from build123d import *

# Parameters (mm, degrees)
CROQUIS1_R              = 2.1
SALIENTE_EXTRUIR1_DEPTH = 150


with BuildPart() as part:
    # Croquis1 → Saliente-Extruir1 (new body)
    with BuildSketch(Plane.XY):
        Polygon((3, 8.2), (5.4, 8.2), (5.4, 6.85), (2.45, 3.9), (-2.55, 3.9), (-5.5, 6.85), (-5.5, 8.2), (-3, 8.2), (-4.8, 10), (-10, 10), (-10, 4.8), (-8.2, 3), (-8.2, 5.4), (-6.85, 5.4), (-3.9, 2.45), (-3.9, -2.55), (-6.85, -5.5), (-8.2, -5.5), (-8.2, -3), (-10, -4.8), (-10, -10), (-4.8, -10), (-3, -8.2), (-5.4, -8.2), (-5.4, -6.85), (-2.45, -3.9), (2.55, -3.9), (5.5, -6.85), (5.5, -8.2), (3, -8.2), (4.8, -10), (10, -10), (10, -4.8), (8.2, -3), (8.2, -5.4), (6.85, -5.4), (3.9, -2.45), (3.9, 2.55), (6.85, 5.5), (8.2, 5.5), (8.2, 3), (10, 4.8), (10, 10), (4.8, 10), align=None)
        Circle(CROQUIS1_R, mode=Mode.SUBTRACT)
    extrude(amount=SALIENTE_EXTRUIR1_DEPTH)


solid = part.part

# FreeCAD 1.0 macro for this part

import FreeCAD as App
import Part
import Sketcher

doc = App.newDocument("Part")
body = doc.addObject("PartDesign::Body", "Body")

# Sketch on XY plane
sketch1 = body.newObject("Sketcher::SketchObject", "Sketch")
sketch1.AttachmentSupport = (doc.getObject("XY_Plane"), [""])
sketch1.MapMode = "FlatFace"
sketch1.addGeometry(Part.LineSegment(App.Vector(3, 8.2, 0), App.Vector(5.4, 8.2, 0)), False)
sketch1.addGeometry(Part.LineSegment(App.Vector(5.4, 8.2, 0), App.Vector(5.4, 6.8, 0)), False)
sketch1.addGeometry(Part.LineSegment(App.Vector(5.4, 6.8, 0), App.Vector(2.5, 3.9, 0)), False)
sketch1.addGeometry(Part.LineSegment(App.Vector(2.5, 3.9, 0), App.Vector(-2.5, 3.9, 0)), False)
sketch1.addGeometry(Part.LineSegment(App.Vector(-2.5, 3.9, 0), App.Vector(-5.5, 6.8, 0)), False)
sketch1.addGeometry(Part.LineSegment(App.Vector(-5.5, 6.8, 0), App.Vector(-5.5, 8.2, 0)), False)
sketch1.addGeometry(Part.LineSegment(App.Vector(-5.5, 8.2, 0), App.Vector(-3, 8.2, 0)), False)
sketch1.addGeometry(Part.LineSegment(App.Vector(-3, 8.2, 0), App.Vector(-4.8, 10, 0)), False)
sketch1.addGeometry(Part.LineSegment(App.Vector(-4.8, 10, 0), App.Vector(-10, 10, 0)), False)
sketch1.addGeometry(Part.LineSegment(App.Vector(-10, 10, 0), App.Vector(-10, 4.8, 0)), False)
sketch1.addGeometry(Part.LineSegment(App.Vector(-10, 4.8, 0), App.Vector(-8.2, 3, 0)), False)
sketch1.addGeometry(Part.LineSegment(App.Vector(-8.2, 3, 0), App.Vector(-8.2, 5.4, 0)), False)
sketch1.addGeometry(Part.LineSegment(App.Vector(-8.2, 5.4, 0), App.Vector(-6.8, 5.4, 0)), False)
sketch1.addGeometry(Part.LineSegment(App.Vector(-6.8, 5.4, 0), App.Vector(-3.9, 2.5, 0)), False)
sketch1.addGeometry(Part.LineSegment(App.Vector(-3.9, 2.5, 0), App.Vector(-3.9, -2.5, 0)), False)
sketch1.addGeometry(Part.LineSegment(App.Vector(-3.9, -2.5, 0), App.Vector(-6.8, -5.5, 0)), False)
sketch1.addGeometry(Part.LineSegment(App.Vector(-6.8, -5.5, 0), App.Vector(-8.2, -5.5, 0)), False)
sketch1.addGeometry(Part.LineSegment(App.Vector(-8.2, -5.5, 0), App.Vector(-8.2, -3, 0)), False)
sketch1.addGeometry(Part.LineSegment(App.Vector(-8.2, -3, 0), App.Vector(-10, -4.8, 0)), False)
sketch1.addGeometry(Part.LineSegment(App.Vector(-10, -4.8, 0), App.Vector(-10, -10, 0)), False)
sketch1.addGeometry(Part.LineSegment(App.Vector(-10, -10, 0), App.Vector(-4.8, -10, 0)), False)
sketch1.addGeometry(Part.LineSegment(App.Vector(-4.8, -10, 0), App.Vector(-3, -8.2, 0)), False)
sketch1.addGeometry(Part.LineSegment(App.Vector(-3, -8.2, 0), App.Vector(-5.4, -8.2, 0)), False)
sketch1.addGeometry(Part.LineSegment(App.Vector(-5.4, -8.2, 0), App.Vector(-5.4, -6.8, 0)), False)
sketch1.addGeometry(Part.LineSegment(App.Vector(-5.4, -6.8, 0), App.Vector(-2.5, -3.9, 0)), False)
sketch1.addGeometry(Part.LineSegment(App.Vector(-2.5, -3.9, 0), App.Vector(2.5, -3.9, 0)), False)
sketch1.addGeometry(Part.LineSegment(App.Vector(2.5, -3.9, 0), App.Vector(5.5, -6.8, 0)), False)
sketch1.addGeometry(Part.LineSegment(App.Vector(5.5, -6.8, 0), App.Vector(5.5, -8.2, 0)), False)
sketch1.addGeometry(Part.LineSegment(App.Vector(5.5, -8.2, 0), App.Vector(3, -8.2, 0)), False)
sketch1.addGeometry(Part.LineSegment(App.Vector(3, -8.2, 0), App.Vector(4.8, -10, 0)), False)
sketch1.addGeometry(Part.LineSegment(App.Vector(4.8, -10, 0), App.Vector(10, -10, 0)), False)
sketch1.addGeometry(Part.LineSegment(App.Vector(10, -10, 0), App.Vector(10, -4.8, 0)), False)
sketch1.addGeometry(Part.LineSegment(App.Vector(10, -4.8, 0), App.Vector(8.2, -3, 0)), False)
sketch1.addGeometry(Part.LineSegment(App.Vector(8.2, -3, 0), App.Vector(8.2, -5.4, 0)), False)
sketch1.addGeometry(Part.LineSegment(App.Vector(8.2, -5.4, 0), App.Vector(6.8, -5.4, 0)), False)
sketch1.addGeometry(Part.LineSegment(App.Vector(6.8, -5.4, 0), App.Vector(3.9, -2.5, 0)), False)
sketch1.addGeometry(Part.LineSegment(App.Vector(3.9, -2.5, 0), App.Vector(3.9, 2.5, 0)), False)
sketch1.addGeometry(Part.LineSegment(App.Vector(3.9, 2.5, 0), App.Vector(6.8, 5.5, 0)), False)
sketch1.addGeometry(Part.LineSegment(App.Vector(6.8, 5.5, 0), App.Vector(8.2, 5.5, 0)), False)
sketch1.addGeometry(Part.LineSegment(App.Vector(8.2, 5.5, 0), App.Vector(8.2, 3, 0)), False)
sketch1.addGeometry(Part.LineSegment(App.Vector(8.2, 3, 0), App.Vector(10, 4.8, 0)), False)
sketch1.addGeometry(Part.LineSegment(App.Vector(10, 4.8, 0), App.Vector(10, 10, 0)), False)
sketch1.addGeometry(Part.LineSegment(App.Vector(10, 10, 0), App.Vector(4.8, 10, 0)), False)
sketch1.addGeometry(Part.LineSegment(App.Vector(4.8, 10, 0), App.Vector(3, 8.2, 0)), False)
sketch1.addGeometry(Part.Circle(App.Vector(0, 0, 0), App.Vector(0, 0, 1), 2.1), False)
sketch1.addConstraint(Sketcher.Constraint("Coincident", 0, 2, 1, 1))
sketch1.addConstraint(Sketcher.Constraint("Coincident", 1, 2, 2, 1))
sketch1.addConstraint(Sketcher.Constraint("Coincident", 2, 2, 3, 1))
sketch1.addConstraint(Sketcher.Constraint("Coincident", 3, 2, 4, 1))
sketch1.addConstraint(Sketcher.Constraint("Coincident", 4, 2, 5, 1))
sketch1.addConstraint(Sketcher.Constraint("Coincident", 5, 2, 6, 1))
sketch1.addConstraint(Sketcher.Constraint("Coincident", 6, 2, 7, 1))
sketch1.addConstraint(Sketcher.Constraint("Coincident", 7, 2, 8, 1))
sketch1.addConstraint(Sketcher.Constraint("Coincident", 8, 2, 9, 1))
sketch1.addConstraint(Sketcher.Constraint("Coincident", 9, 2, 10, 1))
sketch1.addConstraint(Sketcher.Constraint("Coincident", 10, 2, 11, 1))
sketch1.addConstraint(Sketcher.Constraint("Coincident", 11, 2, 12, 1))
sketch1.addConstraint(Sketcher.Constraint("Coincident", 12, 2, 13, 1))
sketch1.addConstraint(Sketcher.Constraint("Coincident", 13, 2, 14, 1))
sketch1.addConstraint(Sketcher.Constraint("Coincident", 14, 2, 15, 1))
sketch1.addConstraint(Sketcher.Constraint("Coincident", 15, 2, 16, 1))
sketch1.addConstraint(Sketcher.Constraint("Coincident", 16, 2, 17, 1))
sketch1.addConstraint(Sketcher.Constraint("Coincident", 17, 2, 18, 1))
sketch1.addConstraint(Sketcher.Constraint("Coincident", 18, 2, 19, 1))
sketch1.addConstraint(Sketcher.Constraint("Coincident", 19, 2, 20, 1))
sketch1.addConstraint(Sketcher.Constraint("Coincident", 20, 2, 21, 1))
sketch1.addConstraint(Sketcher.Constraint("Coincident", 21, 2, 22, 1))
sketch1.addConstraint(Sketcher.Constraint("Coincident", 22, 2, 23, 1))
sketch1.addConstraint(Sketcher.Constraint("Coincident", 23, 2, 24, 1))
sketch1.addConstraint(Sketcher.Constraint("Coincident", 24, 2, 25, 1))
sketch1.addConstraint(Sketcher.Constraint("Coincident", 25, 2, 26, 1))
sketch1.addConstraint(Sketcher.Constraint("Coincident", 26, 2, 27, 1))
sketch1.addConstraint(Sketcher.Constraint("Coincident", 27, 2, 28, 1))
sketch1.addConstraint(Sketcher.Constraint("Coincident", 28, 2, 29, 1))
sketch1.addConstraint(Sketcher.Constraint("Coincident", 29, 2, 30, 1))
sketch1.addConstraint(Sketcher.Constraint("Coincident", 30, 2, 31, 1))
sketch1.addConstraint(Sketcher.Constraint("Coincident", 31, 2, 32, 1))
sketch1.addConstraint(Sketcher.Constraint("Coincident", 32, 2, 33, 1))
sketch1.addConstraint(Sketcher.Constraint("Coincident", 33, 2, 34, 1))
sketch1.addConstraint(Sketcher.Constraint("Coincident", 34, 2, 35, 1))
sketch1.addConstraint(Sketcher.Constraint("Coincident", 35, 2, 36, 1))
sketch1.addConstraint(Sketcher.Constraint("Coincident", 36, 2, 37, 1))
sketch1.addConstraint(Sketcher.Constraint("Coincident", 37, 2, 38, 1))
sketch1.addConstraint(Sketcher.Constraint("Coincident", 38, 2, 39, 1))
sketch1.addConstraint(Sketcher.Constraint("Coincident", 39, 2, 40, 1))
sketch1.addConstraint(Sketcher.Constraint("Coincident", 40, 2, 41, 1))
sketch1.addConstraint(Sketcher.Constraint("Coincident", 41, 2, 42, 1))
sketch1.addConstraint(Sketcher.Constraint("Coincident", 42, 2, 43, 1))
sketch1.addConstraint(Sketcher.Constraint("Coincident", 43, 2, 0, 1))
sketch1.addConstraint(Sketcher.Constraint("Horizontal", 0))
sketch1.addConstraint(Sketcher.Constraint("Vertical", 1))
sketch1.addConstraint(Sketcher.Constraint("Horizontal", 3))
sketch1.addConstraint(Sketcher.Constraint("Vertical", 5))
sketch1.addConstraint(Sketcher.Constraint("Horizontal", 6))
sketch1.addConstraint(Sketcher.Constraint("Horizontal", 8))
sketch1.addConstraint(Sketcher.Constraint("Vertical", 9))
sketch1.addConstraint(Sketcher.Constraint("Vertical", 11))
sketch1.addConstraint(Sketcher.Constraint("Horizontal", 12))
sketch1.addConstraint(Sketcher.Constraint("Vertical", 14))
sketch1.addConstraint(Sketcher.Constraint("Horizontal", 16))
sketch1.addConstraint(Sketcher.Constraint("Vertical", 17))
sketch1.addConstraint(Sketcher.Constraint("Vertical", 19))
sketch1.addConstraint(Sketcher.Constraint("Horizontal", 20))
sketch1.addConstraint(Sketcher.Constraint("Horizontal", 22))
sketch1.addConstraint(Sketcher.Constraint("Vertical", 23))
sketch1.addConstraint(Sketcher.Constraint("Horizontal", 25))
sketch1.addConstraint(Sketcher.Constraint("Vertical", 27))
sketch1.addConstraint(Sketcher.Constraint("Horizontal", 28))
sketch1.addConstraint(Sketcher.Constraint("Horizontal", 30))
sketch1.addConstraint(Sketcher.Constraint("Vertical", 31))
sketch1.addConstraint(Sketcher.Constraint("Vertical", 33))
sketch1.addConstraint(Sketcher.Constraint("Horizontal", 34))
sketch1.addConstraint(Sketcher.Constraint("Vertical", 36))
sketch1.addConstraint(Sketcher.Constraint("Horizontal", 38))
sketch1.addConstraint(Sketcher.Constraint("Vertical", 39))
sketch1.addConstraint(Sketcher.Constraint("Vertical", 41))
sketch1.addConstraint(Sketcher.Constraint("Horizontal", 42))
sketch1.addConstraint(Sketcher.Constraint("Coincident", 44, 3, -1, 1))
sketch1.addConstraint(Sketcher.Constraint("Symmetric", 0, 2, 22, 2, -1, 1))
sketch1.addConstraint(Sketcher.Constraint("Symmetric", 2, 2, 24, 2, -1, 1))
sketch1.addConstraint(Sketcher.Constraint("Symmetric", 4, 2, 26, 2, -1, 1))
sketch1.addConstraint(Sketcher.Constraint("Symmetric", 6, 2, 28, 2, -1, 1))
sketch1.addConstraint(Sketcher.Constraint("Symmetric", 7, 2, 29, 2, -1, 1))
sketch1.addConstraint(Sketcher.Constraint("Symmetric", 9, 2, 31, 2, -1, 1))
sketch1.addConstraint(Sketcher.Constraint("Symmetric", 10, 2, 32, 2, -1, 1))
sketch1.addConstraint(Sketcher.Constraint("Symmetric", 12, 2, 34, 2, -1, 1))
sketch1.addConstraint(Sketcher.Constraint("Symmetric", 13, 2, 35, 2, -1, 1))
sketch1.addConstraint(Sketcher.Constraint("Symmetric", 15, 2, 37, 2, -1, 1))
sketch1.addConstraint(Sketcher.Constraint("Symmetric", 17, 2, 39, 2, -1, 1))
sketch1.addConstraint(Sketcher.Constraint("Symmetric", 18, 2, 40, 2, -1, 1))
sketch1.addConstraint(Sketcher.Constraint("Symmetric", 20, 2, 42, 2, -1, 1))
sketch1.addConstraint(Sketcher.Constraint("Symmetric", 21, 2, 28, 2, -2))
sketch1.addConstraint(Sketcher.Constraint("Symmetric", 20, 2, 29, 2, -2))
sketch1.addConstraint(Sketcher.Constraint("Symmetric", 18, 2, 31, 2, -2))
sketch1.addConstraint(Sketcher.Constraint("Symmetric", 17, 2, 32, 2, -2))
sketch1.addConstraint(Sketcher.Constraint("Perpendicular", 2, 4))
sketch1.addConstraint(Sketcher.Constraint("Parallel", 4, 7))
sketch1.addConstraint(Sketcher.Constraint("Parallel", 7, 10))
sketch1.addConstraint(Sketcher.Constraint("Parallel", 10, 13))
sketch1.addConstraint(Sketcher.Constraint("Perpendicular", 13, 15))
sketch1.addConstraint(Sketcher.Constraint("Parallel", 15, 18))
sketch1.addConstraint(Sketcher.Constraint("Parallel", 21, 24))
sketch1.addConstraint(Sketcher.Constraint("Perpendicular", 24, 26))
sketch1.addConstraint(Sketcher.Constraint("Perpendicular", 35, 37))
sketch1.addConstraint(Sketcher.Constraint("Parallel", 40, 43))
sketch1.addConstraint(Sketcher.Constraint("Horizontal", 1, 2, 4, 2))
sketch1.addConstraint(Sketcher.Constraint("Vertical", 12, 2, 15, 2))
sketch1.addConstraint(Sketcher.Constraint("Equal", 38, 1))
sketch1.addConstraint(Sketcher.Constraint("Equal", 42, 9))
sketch1.addConstraint(Sketcher.Constraint("Equal", 22, 11))
sketch1.addConstraint(Sketcher.Constraint("Equal", 25, 14))
sketch1.addConstraint(Sketcher.Constraint("Equal", 28, 17))
sketch1.addConstraint(Sketcher.Constraint("Equal", 7, 10))
sketch1.addConstraint(Sketcher.Constraint("Equal", 4, 13))
sketch1.addConstraint(Sketcher.Constraint("Diameter", 44, 4.2))
sketch1.addConstraint(Sketcher.Constraint("DistanceX", 3, 2, 3, 1, 5.0))
sketch1.addConstraint(Sketcher.Constraint("DistanceX", 0, 1, 0, 2, 2.4))
sketch1.addConstraint(Sketcher.Constraint("DistanceX", 6, 1, 6, 2, 2.5))
sketch1.addConstraint(Sketcher.Constraint("DistanceX", 8, 2, 8, 1, 5.2))
sketch1.addConstraint(Sketcher.Constraint("DistanceX", 6, 2, -1, 1, 3.0))
sketch1.addConstraint(Sketcher.Constraint("DistanceY", -1, 1, 7, 2, 10.0))
sketch1.addConstraint(Sketcher.Constraint("DistanceX", 12, 1, 12, 2, 1.35))
pad1 = body.newObject("PartDesign::Pad", "Pad")
pad1.Profile = sketch1
pad1.Length = 150

doc.recompute()
